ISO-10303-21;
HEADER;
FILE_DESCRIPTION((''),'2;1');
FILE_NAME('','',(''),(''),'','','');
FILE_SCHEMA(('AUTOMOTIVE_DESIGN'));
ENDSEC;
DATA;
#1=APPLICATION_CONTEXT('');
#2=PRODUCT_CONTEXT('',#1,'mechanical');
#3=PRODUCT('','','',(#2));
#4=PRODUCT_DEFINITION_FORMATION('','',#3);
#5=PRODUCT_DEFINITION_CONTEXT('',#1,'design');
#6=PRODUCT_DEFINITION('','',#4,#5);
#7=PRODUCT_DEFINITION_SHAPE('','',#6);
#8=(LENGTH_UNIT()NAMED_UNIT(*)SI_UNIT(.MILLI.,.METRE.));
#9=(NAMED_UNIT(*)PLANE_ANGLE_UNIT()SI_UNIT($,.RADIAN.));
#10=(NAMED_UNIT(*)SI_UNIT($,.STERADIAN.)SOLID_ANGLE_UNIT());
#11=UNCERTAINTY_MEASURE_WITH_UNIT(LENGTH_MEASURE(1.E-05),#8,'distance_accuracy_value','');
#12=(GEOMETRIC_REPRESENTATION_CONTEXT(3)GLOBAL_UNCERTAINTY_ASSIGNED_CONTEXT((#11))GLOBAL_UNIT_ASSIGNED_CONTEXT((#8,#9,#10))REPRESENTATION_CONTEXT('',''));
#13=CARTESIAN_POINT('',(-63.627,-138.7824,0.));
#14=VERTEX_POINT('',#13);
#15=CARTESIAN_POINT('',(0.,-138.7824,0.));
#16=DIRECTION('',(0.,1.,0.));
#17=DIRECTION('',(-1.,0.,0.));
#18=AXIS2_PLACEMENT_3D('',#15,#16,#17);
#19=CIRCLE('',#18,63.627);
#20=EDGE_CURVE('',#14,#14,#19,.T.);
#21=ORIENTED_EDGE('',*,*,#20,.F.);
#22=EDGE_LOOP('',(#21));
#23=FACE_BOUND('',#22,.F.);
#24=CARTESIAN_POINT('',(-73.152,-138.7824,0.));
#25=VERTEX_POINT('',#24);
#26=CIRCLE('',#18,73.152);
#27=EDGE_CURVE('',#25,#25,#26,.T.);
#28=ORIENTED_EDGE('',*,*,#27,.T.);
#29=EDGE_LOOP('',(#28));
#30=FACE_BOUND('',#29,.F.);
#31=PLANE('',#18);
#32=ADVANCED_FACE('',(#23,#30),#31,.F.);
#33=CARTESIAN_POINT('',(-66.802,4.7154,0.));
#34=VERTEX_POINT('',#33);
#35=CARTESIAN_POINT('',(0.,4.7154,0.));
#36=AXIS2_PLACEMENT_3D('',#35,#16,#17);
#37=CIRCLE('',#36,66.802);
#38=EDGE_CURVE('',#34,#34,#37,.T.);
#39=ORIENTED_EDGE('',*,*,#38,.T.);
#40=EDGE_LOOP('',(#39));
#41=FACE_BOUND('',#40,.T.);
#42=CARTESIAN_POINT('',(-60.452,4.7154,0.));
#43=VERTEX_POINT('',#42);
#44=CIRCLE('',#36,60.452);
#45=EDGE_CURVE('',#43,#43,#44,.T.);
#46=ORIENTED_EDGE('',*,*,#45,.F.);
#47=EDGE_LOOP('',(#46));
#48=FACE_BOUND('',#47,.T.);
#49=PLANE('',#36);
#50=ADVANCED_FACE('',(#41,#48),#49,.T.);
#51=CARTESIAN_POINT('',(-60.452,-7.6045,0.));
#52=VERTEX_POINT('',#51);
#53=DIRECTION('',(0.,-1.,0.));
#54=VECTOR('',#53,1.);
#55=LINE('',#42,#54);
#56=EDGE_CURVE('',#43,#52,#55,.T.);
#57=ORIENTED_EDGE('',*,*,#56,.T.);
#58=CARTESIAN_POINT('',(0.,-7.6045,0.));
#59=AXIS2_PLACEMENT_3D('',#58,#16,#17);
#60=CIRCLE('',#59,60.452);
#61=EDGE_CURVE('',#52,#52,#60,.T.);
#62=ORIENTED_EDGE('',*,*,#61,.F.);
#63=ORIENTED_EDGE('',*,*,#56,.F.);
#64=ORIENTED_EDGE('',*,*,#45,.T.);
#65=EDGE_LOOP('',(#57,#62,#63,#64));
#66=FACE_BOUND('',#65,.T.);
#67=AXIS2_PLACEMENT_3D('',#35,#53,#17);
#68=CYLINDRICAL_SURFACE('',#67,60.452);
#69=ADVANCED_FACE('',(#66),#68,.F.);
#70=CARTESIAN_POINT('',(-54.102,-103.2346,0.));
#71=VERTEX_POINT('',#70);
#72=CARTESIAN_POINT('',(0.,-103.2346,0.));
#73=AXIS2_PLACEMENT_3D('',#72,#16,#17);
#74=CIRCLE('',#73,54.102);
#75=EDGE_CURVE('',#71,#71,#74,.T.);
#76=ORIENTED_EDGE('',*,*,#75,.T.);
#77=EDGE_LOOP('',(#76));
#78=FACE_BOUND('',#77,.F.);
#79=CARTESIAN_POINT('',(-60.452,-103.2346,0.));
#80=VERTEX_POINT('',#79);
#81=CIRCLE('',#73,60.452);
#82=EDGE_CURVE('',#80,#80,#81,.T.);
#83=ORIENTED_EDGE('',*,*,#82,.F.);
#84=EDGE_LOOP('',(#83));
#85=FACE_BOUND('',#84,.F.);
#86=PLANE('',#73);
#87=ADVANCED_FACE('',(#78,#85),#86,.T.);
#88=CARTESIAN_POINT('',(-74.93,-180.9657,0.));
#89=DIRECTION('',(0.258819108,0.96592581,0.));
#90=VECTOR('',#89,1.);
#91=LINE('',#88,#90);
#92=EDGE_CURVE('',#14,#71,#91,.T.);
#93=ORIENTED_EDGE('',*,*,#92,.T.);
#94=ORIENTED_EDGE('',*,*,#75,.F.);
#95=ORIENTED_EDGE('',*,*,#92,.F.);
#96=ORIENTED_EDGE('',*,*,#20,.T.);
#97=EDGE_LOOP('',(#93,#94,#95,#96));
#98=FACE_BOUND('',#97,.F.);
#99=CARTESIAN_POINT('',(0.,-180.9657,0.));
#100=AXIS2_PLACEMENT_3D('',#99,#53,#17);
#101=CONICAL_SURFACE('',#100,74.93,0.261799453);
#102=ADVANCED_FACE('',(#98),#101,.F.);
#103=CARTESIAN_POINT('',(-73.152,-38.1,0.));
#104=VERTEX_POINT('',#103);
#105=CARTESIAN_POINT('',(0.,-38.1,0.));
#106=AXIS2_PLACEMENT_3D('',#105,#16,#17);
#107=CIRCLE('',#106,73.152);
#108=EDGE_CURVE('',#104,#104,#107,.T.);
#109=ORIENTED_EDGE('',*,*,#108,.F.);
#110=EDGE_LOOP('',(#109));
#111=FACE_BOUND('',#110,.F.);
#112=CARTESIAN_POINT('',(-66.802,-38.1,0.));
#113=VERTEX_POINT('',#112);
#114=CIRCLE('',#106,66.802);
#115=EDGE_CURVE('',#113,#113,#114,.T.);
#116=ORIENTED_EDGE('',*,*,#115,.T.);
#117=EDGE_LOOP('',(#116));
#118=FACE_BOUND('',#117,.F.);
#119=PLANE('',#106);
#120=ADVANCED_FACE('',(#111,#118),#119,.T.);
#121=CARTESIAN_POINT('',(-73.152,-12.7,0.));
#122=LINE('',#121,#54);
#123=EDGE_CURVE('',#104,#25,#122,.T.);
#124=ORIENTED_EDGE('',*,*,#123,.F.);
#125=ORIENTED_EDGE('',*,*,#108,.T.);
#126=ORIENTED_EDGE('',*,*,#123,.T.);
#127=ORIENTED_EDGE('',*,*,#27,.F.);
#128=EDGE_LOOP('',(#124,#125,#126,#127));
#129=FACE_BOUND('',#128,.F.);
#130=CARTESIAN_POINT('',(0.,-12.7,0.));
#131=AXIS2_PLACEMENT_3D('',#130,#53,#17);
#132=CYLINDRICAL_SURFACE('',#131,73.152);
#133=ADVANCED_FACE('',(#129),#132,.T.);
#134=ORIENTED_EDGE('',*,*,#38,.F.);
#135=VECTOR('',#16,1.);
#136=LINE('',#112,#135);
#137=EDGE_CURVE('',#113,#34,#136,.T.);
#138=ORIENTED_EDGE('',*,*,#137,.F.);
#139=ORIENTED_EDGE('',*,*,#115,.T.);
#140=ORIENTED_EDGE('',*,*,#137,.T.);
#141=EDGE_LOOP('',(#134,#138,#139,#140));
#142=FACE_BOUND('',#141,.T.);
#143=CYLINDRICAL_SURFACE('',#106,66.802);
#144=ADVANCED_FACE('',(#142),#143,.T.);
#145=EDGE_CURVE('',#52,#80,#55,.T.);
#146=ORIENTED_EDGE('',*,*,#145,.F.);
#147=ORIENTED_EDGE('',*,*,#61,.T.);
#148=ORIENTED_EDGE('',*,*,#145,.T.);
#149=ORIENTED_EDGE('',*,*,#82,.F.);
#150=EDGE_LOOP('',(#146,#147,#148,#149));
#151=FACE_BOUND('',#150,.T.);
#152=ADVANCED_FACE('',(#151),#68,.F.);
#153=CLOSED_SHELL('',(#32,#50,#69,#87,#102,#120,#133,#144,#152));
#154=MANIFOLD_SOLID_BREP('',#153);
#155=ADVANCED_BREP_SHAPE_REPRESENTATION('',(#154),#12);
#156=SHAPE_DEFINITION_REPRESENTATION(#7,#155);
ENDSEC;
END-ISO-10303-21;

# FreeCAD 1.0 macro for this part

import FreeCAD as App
import Part
import Sketcher
Q = App.Units.Quantity


def add_polygon(sketch, points):
    """Adds a closed chain of lines whose ends are joined by coincident constraints."""
    first, n = sketch.GeometryCount, len(points)
    for a, b in zip(points, points[1:] + points[:1]):
        sketch.addGeometry(Part.LineSegment(App.Vector(*a, 0), App.Vector(*b, 0)), False)
    for i in range(n):
        sketch.addConstraint(Sketcher.Constraint("Coincident", first + i, 2, first + (i + 1) % n, 1))

doc = App.newDocument("Part")
body = doc.addObject("PartDesign::Body", "Body")

# Sketch on XY plane
sketch1 = doc.addObject("Sketcher::SketchObject", "Sketch")
body.addObject(sketch1)
sketch1.AttachmentSupport = (doc.XY_Plane, [""])
sketch1.MapMode = "FlatFace"
add_polygon(sketch1, [(-60, -103), (-60, 5), (-67, 5), (-67, -38), (-73, -38), (-73, -139), (-64, -139), (-54, -103)])  # lines 0-7
sketch1.addConstraint([
    Sketcher.Constraint("Vertical", 0),
    Sketcher.Constraint("Horizontal", 1),
    Sketcher.Constraint("Vertical", 2),
    Sketcher.Constraint("Horizontal", 3),
    Sketcher.Constraint("Vertical", 4),
    Sketcher.Constraint("Horizontal", 5),
    Sketcher.Constraint("Horizontal", 7),
    Sketcher.Constraint("Equal", 1, 3),
    Sketcher.Constraint("Equal", 3, 7),
    Sketcher.Constraint("DistanceX", 1, 2, 1, 1, Q("0.25 in")),
    Sketcher.Constraint("DistanceY", 0, 1, 0, 2, Q("4.25 in")),
    Sketcher.Constraint("DistanceX", 5, 1, 5, 2, Q("0.375 in")),
    Sketcher.Constraint("Angle", 6, Q("75 deg")),
    Sketcher.Constraint("DistanceY", 2, 2, -1, 1, Q("1.5 in")),
    Sketcher.Constraint("DistanceX", 0, 2, -1, 1, Q("2.38 in")),
    Sketcher.Constraint("DistanceY", 2, 2, 2, 1, Q("42.8154 mm")),
])
revolution = doc.addObject("PartDesign::Revolution", "Revolution")
body.addObject(revolution)
revolution.Profile = sketch1
revolution.ReferenceAxis = (sketch1, ["V_Axis"])
revolution.Angle = 360

doc.recompute()
